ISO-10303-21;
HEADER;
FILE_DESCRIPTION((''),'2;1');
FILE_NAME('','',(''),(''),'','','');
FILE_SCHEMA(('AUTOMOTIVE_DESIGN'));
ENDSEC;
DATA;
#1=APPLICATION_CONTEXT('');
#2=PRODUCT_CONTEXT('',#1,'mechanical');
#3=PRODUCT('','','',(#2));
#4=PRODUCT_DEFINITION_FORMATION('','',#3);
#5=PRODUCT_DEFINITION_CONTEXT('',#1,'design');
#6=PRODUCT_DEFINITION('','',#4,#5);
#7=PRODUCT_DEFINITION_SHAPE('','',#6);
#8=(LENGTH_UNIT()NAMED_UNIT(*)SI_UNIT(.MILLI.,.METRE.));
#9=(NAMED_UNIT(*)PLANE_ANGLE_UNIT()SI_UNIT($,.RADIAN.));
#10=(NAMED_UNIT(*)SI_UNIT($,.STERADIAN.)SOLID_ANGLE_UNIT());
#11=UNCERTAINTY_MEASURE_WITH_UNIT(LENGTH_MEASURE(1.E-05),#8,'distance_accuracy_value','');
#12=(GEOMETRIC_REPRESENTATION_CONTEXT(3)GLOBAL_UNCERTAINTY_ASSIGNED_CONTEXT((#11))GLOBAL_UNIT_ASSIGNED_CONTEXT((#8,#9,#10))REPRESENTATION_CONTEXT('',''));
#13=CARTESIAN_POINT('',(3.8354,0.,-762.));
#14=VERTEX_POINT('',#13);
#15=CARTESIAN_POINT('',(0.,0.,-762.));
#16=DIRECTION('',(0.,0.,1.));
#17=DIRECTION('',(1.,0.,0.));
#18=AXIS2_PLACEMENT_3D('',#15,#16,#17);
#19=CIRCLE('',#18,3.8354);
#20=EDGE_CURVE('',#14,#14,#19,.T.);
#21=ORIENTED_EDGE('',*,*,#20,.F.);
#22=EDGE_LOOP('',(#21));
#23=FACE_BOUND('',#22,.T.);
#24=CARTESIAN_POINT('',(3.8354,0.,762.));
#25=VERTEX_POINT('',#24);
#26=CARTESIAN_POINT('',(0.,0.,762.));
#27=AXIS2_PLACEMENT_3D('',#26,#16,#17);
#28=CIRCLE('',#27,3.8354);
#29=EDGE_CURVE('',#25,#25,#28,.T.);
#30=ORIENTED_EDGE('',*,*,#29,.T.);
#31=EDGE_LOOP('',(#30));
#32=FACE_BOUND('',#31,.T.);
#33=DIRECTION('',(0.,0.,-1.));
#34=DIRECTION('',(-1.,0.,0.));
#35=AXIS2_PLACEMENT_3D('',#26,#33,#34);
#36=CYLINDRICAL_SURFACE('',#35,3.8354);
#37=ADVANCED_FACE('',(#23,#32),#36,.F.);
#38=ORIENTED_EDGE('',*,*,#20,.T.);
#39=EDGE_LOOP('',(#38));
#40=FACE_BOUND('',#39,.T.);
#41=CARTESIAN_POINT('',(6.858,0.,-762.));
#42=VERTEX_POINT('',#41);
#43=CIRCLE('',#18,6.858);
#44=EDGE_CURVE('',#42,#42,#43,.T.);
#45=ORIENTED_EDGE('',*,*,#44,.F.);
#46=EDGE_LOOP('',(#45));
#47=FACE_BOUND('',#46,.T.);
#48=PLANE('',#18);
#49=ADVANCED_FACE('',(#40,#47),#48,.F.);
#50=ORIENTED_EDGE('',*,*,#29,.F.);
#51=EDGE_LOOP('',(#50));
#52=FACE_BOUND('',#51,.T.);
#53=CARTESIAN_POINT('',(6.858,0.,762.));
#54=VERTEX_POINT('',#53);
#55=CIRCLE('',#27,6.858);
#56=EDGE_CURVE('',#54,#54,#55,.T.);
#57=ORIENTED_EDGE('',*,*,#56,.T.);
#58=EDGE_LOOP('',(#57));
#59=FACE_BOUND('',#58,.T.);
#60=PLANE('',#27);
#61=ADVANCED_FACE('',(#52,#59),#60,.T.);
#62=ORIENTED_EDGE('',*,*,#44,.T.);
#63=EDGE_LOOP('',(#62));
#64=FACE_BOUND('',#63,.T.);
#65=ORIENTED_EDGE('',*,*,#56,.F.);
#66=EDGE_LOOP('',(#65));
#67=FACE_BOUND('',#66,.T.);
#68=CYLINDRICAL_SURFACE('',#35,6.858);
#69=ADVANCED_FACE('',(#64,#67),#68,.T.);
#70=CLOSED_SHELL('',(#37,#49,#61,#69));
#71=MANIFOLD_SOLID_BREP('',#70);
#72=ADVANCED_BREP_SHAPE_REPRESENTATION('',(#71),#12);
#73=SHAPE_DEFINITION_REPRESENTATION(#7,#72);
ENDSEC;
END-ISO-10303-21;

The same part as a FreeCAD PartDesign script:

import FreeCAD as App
import Part
import Sketcher
Q = App.Units.Quantity

doc = App.newDocument("Part")
params = doc.addObject("Spreadsheet::Sheet", "Params")
for row, (alias, value) in enumerate([
    ("sketch1_diameter", "0.54 in"),
    ("sketch1_diameter2", "0.302 in"),
    ("pad1_length", "60 in"),
], start=1):
    params.set(f"A{row}", alias)
    params.set(f"B{row}", "=" + value)
    params.setAlias(f"B{row}", alias)

body = doc.addObject("PartDesign::Body", "Body")

# Sketch on XY plane
sketch1 = body.newObject("Sketcher::SketchObject", "Sketch")
sketch1.AttachmentSupport = (doc.getObject("XY_Plane"), [""])
sketch1.MapMode = "FlatFace"
sketch1.addGeometry([
    Part.Circle(App.Vector(0, 0, 0), App.Vector(0, 0, 1), 6.9),
    Part.Circle(App.Vector(0, 0, 0), App.Vector(0, 0, 1), 3.8),
], False)
sketch1.addConstraint([
    Sketcher.Constraint("Coincident", 0, 3, -1, 1),
    Sketcher.Constraint("Coincident", 1, 3, -1, 1),
    Sketcher.Constraint("Diameter", 0, Q("0.54 in")),
    Sketcher.Constraint("Diameter", 1, Q("0.302 in")),
])
sketch1.setExpression("Constraints[2]", "Params.sketch1_diameter")
sketch1.setExpression("Constraints[3]", "Params.sketch1_diameter2")
pad1 = body.newObject("PartDesign::Pad", "Pad")
pad1.Profile = sketch1
pad1.setExpression("Length", "Params.pad1_length")
pad1.Midplane = True

doc.recompute()
